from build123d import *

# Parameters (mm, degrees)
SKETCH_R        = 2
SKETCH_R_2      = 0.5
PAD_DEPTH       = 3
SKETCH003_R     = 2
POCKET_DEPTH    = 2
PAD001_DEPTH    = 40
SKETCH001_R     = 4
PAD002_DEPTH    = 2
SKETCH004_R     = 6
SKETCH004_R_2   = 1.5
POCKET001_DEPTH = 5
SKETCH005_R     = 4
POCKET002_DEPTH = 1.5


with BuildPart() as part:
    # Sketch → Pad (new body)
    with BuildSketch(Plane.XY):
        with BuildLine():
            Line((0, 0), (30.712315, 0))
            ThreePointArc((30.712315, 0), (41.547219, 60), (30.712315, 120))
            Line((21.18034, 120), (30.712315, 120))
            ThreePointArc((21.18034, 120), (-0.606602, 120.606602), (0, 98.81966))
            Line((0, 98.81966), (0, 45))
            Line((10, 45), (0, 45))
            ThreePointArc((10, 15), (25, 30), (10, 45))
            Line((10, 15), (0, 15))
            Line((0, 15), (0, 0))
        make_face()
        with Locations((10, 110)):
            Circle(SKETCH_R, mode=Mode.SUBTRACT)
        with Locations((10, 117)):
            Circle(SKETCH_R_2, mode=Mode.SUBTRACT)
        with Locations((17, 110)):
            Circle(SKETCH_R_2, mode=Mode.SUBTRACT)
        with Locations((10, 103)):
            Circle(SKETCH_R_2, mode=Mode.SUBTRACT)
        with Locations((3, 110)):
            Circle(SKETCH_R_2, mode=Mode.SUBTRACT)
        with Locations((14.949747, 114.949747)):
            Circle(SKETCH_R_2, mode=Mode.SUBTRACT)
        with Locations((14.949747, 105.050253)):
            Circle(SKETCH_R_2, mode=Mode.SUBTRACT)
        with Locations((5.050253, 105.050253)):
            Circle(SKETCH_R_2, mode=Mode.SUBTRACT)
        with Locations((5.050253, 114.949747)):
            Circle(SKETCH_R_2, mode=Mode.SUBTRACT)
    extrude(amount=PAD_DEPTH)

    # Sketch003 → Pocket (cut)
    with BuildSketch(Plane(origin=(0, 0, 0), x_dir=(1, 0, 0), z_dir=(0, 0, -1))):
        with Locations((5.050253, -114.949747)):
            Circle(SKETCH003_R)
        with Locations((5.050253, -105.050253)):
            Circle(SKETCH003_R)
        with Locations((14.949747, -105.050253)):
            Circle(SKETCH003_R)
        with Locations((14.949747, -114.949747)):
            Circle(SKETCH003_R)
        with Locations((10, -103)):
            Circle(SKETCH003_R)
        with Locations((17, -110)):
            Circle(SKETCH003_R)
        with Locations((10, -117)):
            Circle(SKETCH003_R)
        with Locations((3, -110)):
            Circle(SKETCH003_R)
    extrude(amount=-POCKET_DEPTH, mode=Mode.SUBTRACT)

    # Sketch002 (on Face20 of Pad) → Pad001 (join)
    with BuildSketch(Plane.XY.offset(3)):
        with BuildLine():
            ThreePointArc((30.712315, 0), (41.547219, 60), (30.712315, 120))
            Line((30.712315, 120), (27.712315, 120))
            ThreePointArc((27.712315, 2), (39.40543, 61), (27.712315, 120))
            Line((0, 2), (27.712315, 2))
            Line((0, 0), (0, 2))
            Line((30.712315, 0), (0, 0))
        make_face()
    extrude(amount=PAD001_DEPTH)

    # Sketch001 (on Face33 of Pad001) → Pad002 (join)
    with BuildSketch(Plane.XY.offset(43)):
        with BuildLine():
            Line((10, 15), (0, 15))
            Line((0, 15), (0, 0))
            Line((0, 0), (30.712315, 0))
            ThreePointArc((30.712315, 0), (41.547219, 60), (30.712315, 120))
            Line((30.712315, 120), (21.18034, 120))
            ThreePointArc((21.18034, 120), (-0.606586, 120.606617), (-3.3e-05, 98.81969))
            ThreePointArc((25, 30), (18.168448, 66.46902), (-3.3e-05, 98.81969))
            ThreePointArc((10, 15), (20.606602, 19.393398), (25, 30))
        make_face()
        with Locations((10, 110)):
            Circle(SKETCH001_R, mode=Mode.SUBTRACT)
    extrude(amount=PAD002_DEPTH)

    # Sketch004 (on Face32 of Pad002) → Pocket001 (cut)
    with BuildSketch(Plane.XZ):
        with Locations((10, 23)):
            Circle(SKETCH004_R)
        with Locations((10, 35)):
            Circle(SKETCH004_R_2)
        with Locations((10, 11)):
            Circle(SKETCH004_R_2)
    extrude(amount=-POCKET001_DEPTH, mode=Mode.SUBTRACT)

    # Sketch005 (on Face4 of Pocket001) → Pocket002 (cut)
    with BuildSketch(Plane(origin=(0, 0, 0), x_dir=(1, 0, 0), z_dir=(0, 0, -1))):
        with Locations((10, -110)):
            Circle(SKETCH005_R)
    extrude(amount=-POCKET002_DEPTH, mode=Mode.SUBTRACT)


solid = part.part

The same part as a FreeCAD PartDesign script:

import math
import FreeCAD as App
import Part
import Sketcher
from FreeCAD import Vector

doc = App.newDocument("Part")
params = doc.addObject("Spreadsheet::Sheet", "Params")
for row, (alias, value) in enumerate([
    ("sketch1_diameter", "1 mm"),
    ("sketch1_diameter2", "4 mm"),
    ("sketch1_radius", "15 mm"),
    ("sketch1_width", "10 mm"),
    ("sketch1_height", "15 mm"),
    ("pad1_length", "3 mm"),
    ("sketch2_diameter", "4 mm"),
    ("pocket1_length", "2 mm"),
    ("sketch3_width", "3 mm"),
    ("sketch3_height", "2 mm"),
    ("pad2_length", "40 mm"),
    ("sketch4_diameter", "8 mm"),
    ("sketch4_radius", "15 mm"),
    ("sketch4_width", "10 mm"),
    ("sketch4_height", "15 mm"),
    ("pad3_length", "2 mm"),
    ("sketch5_diameter", "12 mm"),
    ("sketch5_diameter2", "3 mm"),
    ("pocket2_length", "5 mm"),
    ("sketch6_diameter", "8 mm"),
    ("pocket3_length", "1.5 mm"),
], start=1):
    params.set(f"A{row}", alias)
    params.set(f"B{row}", "=" + value)
    params.setAlias(f"B{row}", alias)

body = doc.addObject("PartDesign::Body", "Body")

# Sketch on XY plane
sketch1 = doc.addObject("Sketcher::SketchObject", "Sketch")
body.addObject(sketch1)
sketch1.AttachmentSupport = (doc.XY_Plane, [""])
sketch1.MapMode = "FlatFace"
sketch1.addGeometry(Part.LineSegment(Vector(0, 0, 0), Vector(30.7, 0, 0)), False)
sketch1.addGeometry(Part.ArcOfCircle(Part.Circle(Vector(-130, 60, 0), Vector(0, 0, 1), 171.5), math.radians(-20), math.radians(20)), False)
sketch1.addGeometry(Part.LineSegment(Vector(30.7, 120, 0), Vector(21.2, 120, 0)), False)
sketch1.addGeometry(Part.ArcOfCircle(Part.Circle(Vector(10, 110, 0), Vector(0, 0, 1), 15), math.radians(42), math.radians(228)), False)
sketch1.addGeometry(Part.LineSegment(Vector(0, 98.8, 0), Vector(0, 45, 0)), False)
sketch1.addGeometry(Part.LineSegment(Vector(0, 45, 0), Vector(10, 45, 0)), False)
sketch1.addGeometry(Part.ArcOfCircle(Part.Circle(Vector(10, 30, 0), Vector(0, 0, 1), 15), math.radians(-90), math.radians(90)), False)
sketch1.addGeometry(Part.LineSegment(Vector(10, 15, 0), Vector(0, 15, 0)), False)
sketch1.addGeometry(Part.LineSegment(Vector(0, 15, 0), Vector(0, 0, 0)), False)
sketch1.addGeometry(Part.Circle(Vector(5.1, 105.1, 0), Vector(0, 0, 1), 0.5), False)
sketch1.addGeometry(Part.Circle(Vector(10, 103, 0), Vector(0, 0, 1), 0.5), False)
sketch1.addGeometry(Part.Circle(Vector(14.9, 105.1, 0), Vector(0, 0, 1), 0.5), False)
sketch1.addGeometry(Part.Circle(Vector(3, 110, 0), Vector(0, 0, 1), 0.5), False)
sketch1.addGeometry(Part.Circle(Vector(5.1, 114.9, 0), Vector(0, 0, 1), 0.5), False)
sketch1.addGeometry(Part.Circle(Vector(10, 110, 0), Vector(0, 0, 1), 2), False)
sketch1.addGeometry(Part.Circle(Vector(17, 110, 0), Vector(0, 0, 1), 0.5), False)
sketch1.addGeometry(Part.Circle(Vector(10, 117, 0), Vector(0, 0, 1), 0.5), False)
sketch1.addGeometry(Part.Circle(Vector(14.9, 114.9, 0), Vector(0, 0, 1), 0.5), False)
sketch1.addConstraint(Sketcher.Constraint("Coincident", 0, 2, 1, 1))
sketch1.addConstraint(Sketcher.Constraint("Coincident", 1, 2, 2, 1))
sketch1.addConstraint(Sketcher.Constraint("Coincident", 2, 2, 3, 1))
sketch1.addConstraint(Sketcher.Constraint("Coincident", 3, 2, 4, 1))
sketch1.addConstraint(Sketcher.Constraint("Coincident", 4, 2, 5, 1))
sketch1.addConstraint(Sketcher.Constraint("Tangent", 5, 2, 6, 2))
sketch1.addConstraint(Sketcher.Constraint("Tangent", 6, 1, 7, 1))
sketch1.addConstraint(Sketcher.Constraint("Coincident", 7, 2, 8, 1))
sketch1.addConstraint(Sketcher.Constraint("Coincident", 8, 2, 0, 1))
sketch1.addConstraint(Sketcher.Constraint("Horizontal", 0))
sketch1.addConstraint(Sketcher.Constraint("Horizontal", 2))
sketch1.addConstraint(Sketcher.Constraint("Vertical", 4))
sketch1.addConstraint(Sketcher.Constraint("Horizontal", 5))
sketch1.addConstraint(Sketcher.Constraint("Horizontal", 7))
sketch1.addConstraint(Sketcher.Constraint("Vertical", 8))
sketch1.addConstraint(Sketcher.Constraint("Coincident", 8, 2, -1, 1))
sketch1.addConstraint(Sketcher.Constraint("Coincident", 14, 3, 3, 3))
sketch1.addConstraint(Sketcher.Constraint("Equal", 3, 6))
sketch1.addConstraint(Sketcher.Constraint("Equal", 9, 10))
sketch1.addConstraint(Sketcher.Constraint("Equal", 10, 11))
sketch1.addConstraint(Sketcher.Constraint("Equal", 11, 12))
sketch1.addConstraint(Sketcher.Constraint("Equal", 12, 13))
sketch1.addConstraint(Sketcher.Constraint("Equal", 13, 15))
sketch1.addConstraint(Sketcher.Constraint("Equal", 15, 16))
sketch1.addConstraint(Sketcher.Constraint("Equal", 16, 17))
sketch1.addConstraint(Sketcher.Constraint("PointOnObject", 3, 2, -2))
sketch1.addConstraint(Sketcher.Constraint("Horizontal", 9, 3, 11, 3))
sketch1.addConstraint(Sketcher.Constraint("Horizontal", 3, 3, 12, 3))
sketch1.addConstraint(Sketcher.Constraint("Horizontal", 14, 3, 15, 3))
sketch1.addConstraint(Sketcher.Constraint("Horizontal", 13, 3, 17, 3))
sketch1.addConstraint(Sketcher.Constraint("Vertical", 3, 3, 6, 3))
sketch1.addConstraint(Sketcher.Constraint("Vertical", 6, 3, 10, 3))
sketch1.addConstraint(Sketcher.Constraint("Vertical", 9, 3, 13, 3))
sketch1.addConstraint(Sketcher.Constraint("Vertical", 14, 3, 16, 3))
sketch1.addConstraint(Sketcher.Constraint("Vertical", 11, 3, 17, 3))
sketch1.addConstraint(Sketcher.Constraint("Vertical", 0, 2, 1, 2))
sketch1.addConstraint(Sketcher.Constraint("Diameter", 9, 1.0))
sketch1.addConstraint(Sketcher.Constraint("Diameter", 14, 4.0))
sketch1.addConstraint(Sketcher.Constraint("Radius", 3, 15.0))
sketch1.addConstraint(Sketcher.Constraint("DistanceX", 5, 1, 5, 2, 10.0))
sketch1.addConstraint(Sketcher.Constraint("DistanceY", 8, 2, 8, 1, 15.0))
sketch1.addConstraint(Sketcher.Constraint("DistanceY", -1, 1, 1, 3, 60.0))
sketch1.addConstraint(Sketcher.Constraint("DistanceY", -1, 1, 3, 3, 110.0))
sketch1.addConstraint(Sketcher.Constraint("DistanceY", -1, 1, 10, 3, 103.0))
sketch1.addConstraint(Sketcher.Constraint("DistanceX", -1, 1, 12, 3, 3.0))
sketch1.addConstraint(Sketcher.Constraint("DistanceX", -1, 1, 15, 3, 17.0))
sketch1.addConstraint(Sketcher.Constraint("DistanceY", -1, 1, 16, 3, 117.0))
sketch1.addConstraint(Sketcher.Constraint("Radius", 1, 171.547212))
sketch1.addConstraint(Sketcher.Constraint("DistanceX", 0, 1, 0, 2, 30.712315))
sketch1.addConstraint(Sketcher.Constraint("DistanceX", 1, 3, 11, 3, 144.94974))
sketch1.addConstraint(Sketcher.Constraint("DistanceX", 9, 3, 0, 2, 25.662062))
sketch1.addConstraint(Sketcher.Constraint("DistanceY", -1, 1, 9, 3, 105.050253))
sketch1.addConstraint(Sketcher.Constraint("DistanceY", -1, 1, 13, 3, 114.949747))
sketch1.setExpression("Constraints[36]", "Params.sketch1_diameter")
sketch1.setExpression("Constraints[37]", "Params.sketch1_diameter2")
sketch1.setExpression("Constraints[38]", "Params.sketch1_radius")
sketch1.setExpression("Constraints[39]", "Params.sketch1_width")
sketch1.setExpression("Constraints[40]", "Params.sketch1_height")
pad1 = doc.addObject("PartDesign::Pad", "Pad")
body.addObject(pad1)
pad1.Profile = sketch1
pad1.setExpression("Length", "Params.pad1_length")

# Sketch on XY plane
sketch2 = doc.addObject("Sketcher::SketchObject", "Sketch001")
body.addObject(sketch2)
sketch2.AttachmentSupport = (doc.XY_Plane, [""])
sketch2.MapMode = "FlatFace"
sketch2.addGeometry(Part.Circle(Vector(5.1, 114.9, 0), Vector(0, 0, 1), 2), False)
sketch2.addGeometry(Part.Circle(Vector(5.1, 105.1, 0), Vector(0, 0, 1), 2), False)
sketch2.addGeometry(Part.Circle(Vector(14.9, 105.1, 0), Vector(0, 0, 1), 2), False)
sketch2.addGeometry(Part.Circle(Vector(14.9, 114.9, 0), Vector(0, 0, 1), 2), False)
sketch2.addGeometry(Part.Circle(Vector(10, 103, 0), Vector(0, 0, 1), 2), False)
sketch2.addGeometry(Part.Circle(Vector(17, 110, 0), Vector(0, 0, 1), 2), False)
sketch2.addGeometry(Part.Circle(Vector(10, 117, 0), Vector(0, 0, 1), 2), False)
sketch2.addGeometry(Part.Circle(Vector(3, 110, 0), Vector(0, 0, 1), 2), False)
sketch2.addConstraint(Sketcher.Constraint("Equal", 0, 1))
sketch2.addConstraint(Sketcher.Constraint("Equal", 1, 2))
sketch2.addConstraint(Sketcher.Constraint("Equal", 2, 3))
sketch2.addConstraint(Sketcher.Constraint("Equal", 3, 4))
sketch2.addConstraint(Sketcher.Constraint("Equal", 4, 5))
sketch2.addConstraint(Sketcher.Constraint("Equal", 5, 6))
sketch2.addConstraint(Sketcher.Constraint("Equal", 6, 7))
sketch2.addConstraint(Sketcher.Constraint("Horizontal", 1, 3, 2, 3))
sketch2.addConstraint(Sketcher.Constraint("Horizontal", 0, 3, 3, 3))
sketch2.addConstraint(Sketcher.Constraint("Horizontal", 5, 3, 7, 3))
sketch2.addConstraint(Sketcher.Constraint("Vertical", 0, 3, 1, 3))
sketch2.addConstraint(Sketcher.Constraint("Vertical", 2, 3, 3, 3))
sketch2.addConstraint(Sketcher.Constraint("Vertical", 4, 3, 6, 3))
sketch2.addConstraint(Sketcher.Constraint("Diameter", 0, 4.0))
sketch2.addConstraint(Sketcher.Constraint("DistanceX", -1, 1, 4, 3, 10.0))
sketch2.addConstraint(Sketcher.Constraint("DistanceY", -1, 1, 4, 3, 103.0))
sketch2.addConstraint(Sketcher.Constraint("DistanceX", -1, 1, 5, 3, 17.0))
sketch2.addConstraint(Sketcher.Constraint("DistanceY", -1, 1, 5, 3, 110.0))
sketch2.addConstraint(Sketcher.Constraint("DistanceY", -1, 1, 6, 3, 117.0))
sketch2.addConstraint(Sketcher.Constraint("DistanceX", -1, 1, 7, 3, 3.0))
sketch2.addConstraint(Sketcher.Constraint("DistanceX", -1, 1, 0, 3, 5.050253))
sketch2.addConstraint(Sketcher.Constraint("DistanceY", -1, 1, 0, 3, 114.949747))
sketch2.addConstraint(Sketcher.Constraint("DistanceY", -1, 1, 1, 3, 105.050253))
sketch2.addConstraint(Sketcher.Constraint("DistanceX", -1, 1, 2, 3, 14.949747))
sketch2.setExpression("Constraints[13]", "Params.sketch2_diameter")
pocket1 = doc.addObject("PartDesign::Pocket", "Pocket")
body.addObject(pocket1)
pocket1.Profile = sketch2
pocket1.setExpression("Length", "Params.pocket1_length")
pocket1.Reversed = True

# Sketch on XY plane
sketch3 = doc.addObject("Sketcher::SketchObject", "Sketch002")
body.addObject(sketch3)
sketch3.AttachmentSupport = (doc.XY_Plane, [""])
sketch3.MapMode = "FlatFace"
sketch3.AttachmentOffset = App.Placement(Vector(0, 0, 3), App.Rotation())
sketch3.addGeometry(Part.ArcOfCircle(Part.Circle(Vector(-130, 60, 0), Vector(0, 0, 1), 171.5), math.radians(-20), math.radians(20)), False)
sketch3.addGeometry(Part.LineSegment(Vector(30.7, 120, 0), Vector(27.7, 120, 0)), False)
sketch3.addGeometry(Part.ArcOfCircle(Part.Circle(Vector(-115.3, 61, 0), Vector(0, 0, 1), 154.7), math.radians(-22), math.radians(22)), False)
sketch3.addGeometry(Part.LineSegment(Vector(27.7, 2, 0), Vector(0, 2, 0)), False)
sketch3.addGeometry(Part.LineSegment(Vector(0, 2, 0), Vector(0, 0, 0)), False)
sketch3.addGeometry(Part.LineSegment(Vector(0, 0, 0), Vector(30.7, 0, 0)), False)
sketch3.addConstraint(Sketcher.Constraint("Coincident", 0, 2, 1, 1))
sketch3.addConstraint(Sketcher.Constraint("Coincident", 1, 2, 2, 2))
sketch3.addConstraint(Sketcher.Constraint("Coincident", 2, 1, 3, 1))
sketch3.addConstraint(Sketcher.Constraint("Coincident", 3, 2, 4, 1))
sketch3.addConstraint(Sketcher.Constraint("Coincident", 4, 2, 5, 1))
sketch3.addConstraint(Sketcher.Constraint("Coincident", 5, 2, 0, 1))
sketch3.addConstraint(Sketcher.Constraint("Horizontal", 1))
sketch3.addConstraint(Sketcher.Constraint("Horizontal", 3))
sketch3.addConstraint(Sketcher.Constraint("Vertical", 4))
sketch3.addConstraint(Sketcher.Constraint("Horizontal", 5))
sketch3.addConstraint(Sketcher.Constraint("Coincident", 4, 2, -1, 1))
sketch3.addConstraint(Sketcher.Constraint("Vertical", 1, 2, 2, 1))
sketch3.addConstraint(Sketcher.Constraint("Vertical", 0, 2, 5, 2))
sketch3.addConstraint(Sketcher.Constraint("DistanceX", 1, 2, 1, 1, 3.0))
sketch3.addConstraint(Sketcher.Constraint("DistanceY", 4, 2, 4, 1, 2.0))
sketch3.addConstraint(Sketcher.Constraint("DistanceY", -1, 1, 0, 3, 60.0))
sketch3.addConstraint(Sketcher.Constraint("Radius", 0, 171.547212))
sketch3.addConstraint(Sketcher.Constraint("Radius", 2, 154.694833))
sketch3.addConstraint(Sketcher.Constraint("DistanceX", 3, 2, 3, 1, 27.712315))
sketch3.setExpression("Constraints[13]", "Params.sketch3_width")
sketch3.setExpression("Constraints[14]", "Params.sketch3_height")
pad2 = doc.addObject("PartDesign::Pad", "Pad001")
body.addObject(pad2)
pad2.Profile = sketch3
pad2.setExpression("Length", "Params.pad2_length")

# Sketch on XY plane
sketch4 = doc.addObject("Sketcher::SketchObject", "Sketch003")
body.addObject(sketch4)
sketch4.AttachmentSupport = (doc.XY_Plane, [""])
sketch4.MapMode = "FlatFace"
sketch4.AttachmentOffset = App.Placement(Vector(0, 0, 43), App.Rotation())
sketch4.addGeometry(Part.LineSegment(Vector(10, 15, 0), Vector(0, 15, 0)), False)
sketch4.addGeometry(Part.LineSegment(Vector(0, 15, 0), Vector(0, 0, 0)), False)
sketch4.addGeometry(Part.LineSegment(Vector(0, 0, 0), Vector(30.7, 0, 0)), False)
sketch4.addGeometry(Part.ArcOfCircle(Part.Circle(Vector(-130, 60, 0), Vector(0, 0, 1), 171.5), math.radians(-20), math.radians(20)), False)
sketch4.addGeometry(Part.LineSegment(Vector(30.7, 120, 0), Vector(21.2, 120, 0)), False)
sketch4.addGeometry(Part.ArcOfCircle(Part.Circle(Vector(10, 110, 0), Vector(0, 0, 1), 15), math.radians(42), math.radians(228)), False)
sketch4.addGeometry(Part.ArcOfCircle(Part.Circle(Vector(-89.1, 27.5, 0), Vector(0, 0, 1), 114.1), math.radians(1), math.radians(39)), False)
sketch4.addGeometry(Part.ArcOfCircle(Part.Circle(Vector(10, 30, 0), Vector(0, 0, 1), 15), math.radians(-90), math.radians(0)), False)
sketch4.addGeometry(Part.Circle(Vector(10, 110, 0), Vector(0, 0, 1), 4), False)
sketch4.addConstraint(Sketcher.Constraint("Coincident", 0, 2, 1, 1))
sketch4.addConstraint(Sketcher.Constraint("Coincident", 1, 2, 2, 1))
sketch4.addConstraint(Sketcher.Constraint("Coincident", 2, 2, 3, 1))
sketch4.addConstraint(Sketcher.Constraint("Coincident", 3, 2, 4, 1))
sketch4.addConstraint(Sketcher.Constraint("Coincident", 4, 2, 5, 1))
sketch4.addConstraint(Sketcher.Constraint("Coincident", 5, 2, 6, 2))
sketch4.addConstraint(Sketcher.Constraint("Coincident", 6, 1, 7, 2))
sketch4.addConstraint(Sketcher.Constraint("Tangent", 7, 1, 0, 1))
sketch4.addConstraint(Sketcher.Constraint("Horizontal", 0))
sketch4.addConstraint(Sketcher.Constraint("Vertical", 1))
sketch4.addConstraint(Sketcher.Constraint("Horizontal", 2))
sketch4.addConstraint(Sketcher.Constraint("Horizontal", 4))
sketch4.addConstraint(Sketcher.Constraint("Coincident", 1, 2, -1, 1))
sketch4.addConstraint(Sketcher.Constraint("Coincident", 8, 3, 5, 3))
sketch4.addConstraint(Sketcher.Constraint("Equal", 5, 7))
sketch4.addConstraint(Sketcher.Constraint("Horizontal", 7, 3, 6, 1))
sketch4.addConstraint(Sketcher.Constraint("Vertical", 5, 3, 7, 3))
sketch4.addConstraint(Sketcher.Constraint("Vertical", 2, 2, 3, 2))
sketch4.addConstraint(Sketcher.Constraint("Diameter", 8, 8.0))
sketch4.addConstraint(Sketcher.Constraint("Radius", 5, 15.0))
sketch4.addConstraint(Sketcher.Constraint("DistanceX", 0, 2, 0, 1, 10.0))
sketch4.addConstraint(Sketcher.Constraint("DistanceY", 1, 2, 1, 1, 15.0))
sketch4.addConstraint(Sketcher.Constraint("DistanceY", -1, 1, 3, 3, 60.0))
sketch4.addConstraint(Sketcher.Constraint("DistanceY", -1, 1, 5, 3, 110.0))
sketch4.addConstraint(Sketcher.Constraint("Radius", 3, 171.547212))
sketch4.addConstraint(Sketcher.Constraint("Radius", 6, 114.133938))
sketch4.addConstraint(Sketcher.Constraint("DistanceX", 2, 1, 2, 2, 30.712315))
sketch4.addConstraint(Sketcher.Constraint("DistanceX", 6, 3, -1, 1, 89.106541))
sketch4.setExpression("Constraints[18]", "Params.sketch4_diameter")
sketch4.setExpression("Constraints[19]", "Params.sketch4_radius")
sketch4.setExpression("Constraints[20]", "Params.sketch4_width")
sketch4.setExpression("Constraints[21]", "Params.sketch4_height")
pad3 = doc.addObject("PartDesign::Pad", "Pad002")
body.addObject(pad3)
pad3.Profile = sketch4
pad3.setExpression("Length", "Params.pad3_length")

# Sketch on XZ plane
sketch5 = doc.addObject("Sketcher::SketchObject", "Sketch004")
body.addObject(sketch5)
sketch5.AttachmentSupport = (doc.XZ_Plane, [""])
sketch5.MapMode = "FlatFace"
sketch5.addGeometry(Part.Circle(Vector(10, 23, 0), Vector(0, 0, 1), 6), False)
sketch5.addGeometry(Part.Circle(Vector(10, 35, 0), Vector(0, 0, 1), 1.5), False)
sketch5.addGeometry(Part.Circle(Vector(10, 11, 0), Vector(0, 0, 1), 1.5), False)
sketch5.addConstraint(Sketcher.Constraint("Equal", 1, 2))
sketch5.addConstraint(Sketcher.Constraint("Vertical", 0, 3, 1, 3))
sketch5.addConstraint(Sketcher.Constraint("Vertical", 1, 3, 2, 3))
sketch5.addConstraint(Sketcher.Constraint("Diameter", 0, 12.0))
sketch5.addConstraint(Sketcher.Constraint("Diameter", 1, 3.0))
sketch5.addConstraint(Sketcher.Constraint("DistanceX", -1, 1, 0, 3, 10.0))
sketch5.addConstraint(Sketcher.Constraint("DistanceY", -1, 1, 0, 3, 23.0))
sketch5.addConstraint(Sketcher.Constraint("DistanceY", -1, 1, 1, 3, 35.0))
sketch5.addConstraint(Sketcher.Constraint("DistanceY", -1, 1, 2, 3, 11.0))
sketch5.setExpression("Constraints[3]", "Params.sketch5_diameter")
sketch5.setExpression("Constraints[4]", "Params.sketch5_diameter2")
pocket2 = doc.addObject("PartDesign::Pocket", "Pocket001")
body.addObject(pocket2)
pocket2.Profile = sketch5
pocket2.setExpression("Length", "Params.pocket2_length")

# Sketch on XY plane
sketch6 = doc.addObject("Sketcher::SketchObject", "Sketch005")
body.addObject(sketch6)
sketch6.AttachmentSupport = (doc.XY_Plane, [""])
sketch6.MapMode = "FlatFace"
sketch6.addGeometry(Part.Circle(Vector(10, 110, 0), Vector(0, 0, 1), 4), False)
sketch6.addConstraint(Sketcher.Constraint("Diameter", 0, 8.0))
sketch6.addConstraint(Sketcher.Constraint("DistanceX", -1, 1, 0, 3, 10.0))
sketch6.addConstraint(Sketcher.Constraint("DistanceY", -1, 1, 0, 3, 110.0))
sketch6.setExpression("Constraints[0]", "Params.sketch6_diameter")
pocket3 = doc.addObject("PartDesign::Pocket", "Pocket002")
body.addObject(pocket3)
pocket3.Profile = sketch6
pocket3.setExpression("Length", "Params.pocket3_length")
pocket3.Reversed = True

doc.recompute()
